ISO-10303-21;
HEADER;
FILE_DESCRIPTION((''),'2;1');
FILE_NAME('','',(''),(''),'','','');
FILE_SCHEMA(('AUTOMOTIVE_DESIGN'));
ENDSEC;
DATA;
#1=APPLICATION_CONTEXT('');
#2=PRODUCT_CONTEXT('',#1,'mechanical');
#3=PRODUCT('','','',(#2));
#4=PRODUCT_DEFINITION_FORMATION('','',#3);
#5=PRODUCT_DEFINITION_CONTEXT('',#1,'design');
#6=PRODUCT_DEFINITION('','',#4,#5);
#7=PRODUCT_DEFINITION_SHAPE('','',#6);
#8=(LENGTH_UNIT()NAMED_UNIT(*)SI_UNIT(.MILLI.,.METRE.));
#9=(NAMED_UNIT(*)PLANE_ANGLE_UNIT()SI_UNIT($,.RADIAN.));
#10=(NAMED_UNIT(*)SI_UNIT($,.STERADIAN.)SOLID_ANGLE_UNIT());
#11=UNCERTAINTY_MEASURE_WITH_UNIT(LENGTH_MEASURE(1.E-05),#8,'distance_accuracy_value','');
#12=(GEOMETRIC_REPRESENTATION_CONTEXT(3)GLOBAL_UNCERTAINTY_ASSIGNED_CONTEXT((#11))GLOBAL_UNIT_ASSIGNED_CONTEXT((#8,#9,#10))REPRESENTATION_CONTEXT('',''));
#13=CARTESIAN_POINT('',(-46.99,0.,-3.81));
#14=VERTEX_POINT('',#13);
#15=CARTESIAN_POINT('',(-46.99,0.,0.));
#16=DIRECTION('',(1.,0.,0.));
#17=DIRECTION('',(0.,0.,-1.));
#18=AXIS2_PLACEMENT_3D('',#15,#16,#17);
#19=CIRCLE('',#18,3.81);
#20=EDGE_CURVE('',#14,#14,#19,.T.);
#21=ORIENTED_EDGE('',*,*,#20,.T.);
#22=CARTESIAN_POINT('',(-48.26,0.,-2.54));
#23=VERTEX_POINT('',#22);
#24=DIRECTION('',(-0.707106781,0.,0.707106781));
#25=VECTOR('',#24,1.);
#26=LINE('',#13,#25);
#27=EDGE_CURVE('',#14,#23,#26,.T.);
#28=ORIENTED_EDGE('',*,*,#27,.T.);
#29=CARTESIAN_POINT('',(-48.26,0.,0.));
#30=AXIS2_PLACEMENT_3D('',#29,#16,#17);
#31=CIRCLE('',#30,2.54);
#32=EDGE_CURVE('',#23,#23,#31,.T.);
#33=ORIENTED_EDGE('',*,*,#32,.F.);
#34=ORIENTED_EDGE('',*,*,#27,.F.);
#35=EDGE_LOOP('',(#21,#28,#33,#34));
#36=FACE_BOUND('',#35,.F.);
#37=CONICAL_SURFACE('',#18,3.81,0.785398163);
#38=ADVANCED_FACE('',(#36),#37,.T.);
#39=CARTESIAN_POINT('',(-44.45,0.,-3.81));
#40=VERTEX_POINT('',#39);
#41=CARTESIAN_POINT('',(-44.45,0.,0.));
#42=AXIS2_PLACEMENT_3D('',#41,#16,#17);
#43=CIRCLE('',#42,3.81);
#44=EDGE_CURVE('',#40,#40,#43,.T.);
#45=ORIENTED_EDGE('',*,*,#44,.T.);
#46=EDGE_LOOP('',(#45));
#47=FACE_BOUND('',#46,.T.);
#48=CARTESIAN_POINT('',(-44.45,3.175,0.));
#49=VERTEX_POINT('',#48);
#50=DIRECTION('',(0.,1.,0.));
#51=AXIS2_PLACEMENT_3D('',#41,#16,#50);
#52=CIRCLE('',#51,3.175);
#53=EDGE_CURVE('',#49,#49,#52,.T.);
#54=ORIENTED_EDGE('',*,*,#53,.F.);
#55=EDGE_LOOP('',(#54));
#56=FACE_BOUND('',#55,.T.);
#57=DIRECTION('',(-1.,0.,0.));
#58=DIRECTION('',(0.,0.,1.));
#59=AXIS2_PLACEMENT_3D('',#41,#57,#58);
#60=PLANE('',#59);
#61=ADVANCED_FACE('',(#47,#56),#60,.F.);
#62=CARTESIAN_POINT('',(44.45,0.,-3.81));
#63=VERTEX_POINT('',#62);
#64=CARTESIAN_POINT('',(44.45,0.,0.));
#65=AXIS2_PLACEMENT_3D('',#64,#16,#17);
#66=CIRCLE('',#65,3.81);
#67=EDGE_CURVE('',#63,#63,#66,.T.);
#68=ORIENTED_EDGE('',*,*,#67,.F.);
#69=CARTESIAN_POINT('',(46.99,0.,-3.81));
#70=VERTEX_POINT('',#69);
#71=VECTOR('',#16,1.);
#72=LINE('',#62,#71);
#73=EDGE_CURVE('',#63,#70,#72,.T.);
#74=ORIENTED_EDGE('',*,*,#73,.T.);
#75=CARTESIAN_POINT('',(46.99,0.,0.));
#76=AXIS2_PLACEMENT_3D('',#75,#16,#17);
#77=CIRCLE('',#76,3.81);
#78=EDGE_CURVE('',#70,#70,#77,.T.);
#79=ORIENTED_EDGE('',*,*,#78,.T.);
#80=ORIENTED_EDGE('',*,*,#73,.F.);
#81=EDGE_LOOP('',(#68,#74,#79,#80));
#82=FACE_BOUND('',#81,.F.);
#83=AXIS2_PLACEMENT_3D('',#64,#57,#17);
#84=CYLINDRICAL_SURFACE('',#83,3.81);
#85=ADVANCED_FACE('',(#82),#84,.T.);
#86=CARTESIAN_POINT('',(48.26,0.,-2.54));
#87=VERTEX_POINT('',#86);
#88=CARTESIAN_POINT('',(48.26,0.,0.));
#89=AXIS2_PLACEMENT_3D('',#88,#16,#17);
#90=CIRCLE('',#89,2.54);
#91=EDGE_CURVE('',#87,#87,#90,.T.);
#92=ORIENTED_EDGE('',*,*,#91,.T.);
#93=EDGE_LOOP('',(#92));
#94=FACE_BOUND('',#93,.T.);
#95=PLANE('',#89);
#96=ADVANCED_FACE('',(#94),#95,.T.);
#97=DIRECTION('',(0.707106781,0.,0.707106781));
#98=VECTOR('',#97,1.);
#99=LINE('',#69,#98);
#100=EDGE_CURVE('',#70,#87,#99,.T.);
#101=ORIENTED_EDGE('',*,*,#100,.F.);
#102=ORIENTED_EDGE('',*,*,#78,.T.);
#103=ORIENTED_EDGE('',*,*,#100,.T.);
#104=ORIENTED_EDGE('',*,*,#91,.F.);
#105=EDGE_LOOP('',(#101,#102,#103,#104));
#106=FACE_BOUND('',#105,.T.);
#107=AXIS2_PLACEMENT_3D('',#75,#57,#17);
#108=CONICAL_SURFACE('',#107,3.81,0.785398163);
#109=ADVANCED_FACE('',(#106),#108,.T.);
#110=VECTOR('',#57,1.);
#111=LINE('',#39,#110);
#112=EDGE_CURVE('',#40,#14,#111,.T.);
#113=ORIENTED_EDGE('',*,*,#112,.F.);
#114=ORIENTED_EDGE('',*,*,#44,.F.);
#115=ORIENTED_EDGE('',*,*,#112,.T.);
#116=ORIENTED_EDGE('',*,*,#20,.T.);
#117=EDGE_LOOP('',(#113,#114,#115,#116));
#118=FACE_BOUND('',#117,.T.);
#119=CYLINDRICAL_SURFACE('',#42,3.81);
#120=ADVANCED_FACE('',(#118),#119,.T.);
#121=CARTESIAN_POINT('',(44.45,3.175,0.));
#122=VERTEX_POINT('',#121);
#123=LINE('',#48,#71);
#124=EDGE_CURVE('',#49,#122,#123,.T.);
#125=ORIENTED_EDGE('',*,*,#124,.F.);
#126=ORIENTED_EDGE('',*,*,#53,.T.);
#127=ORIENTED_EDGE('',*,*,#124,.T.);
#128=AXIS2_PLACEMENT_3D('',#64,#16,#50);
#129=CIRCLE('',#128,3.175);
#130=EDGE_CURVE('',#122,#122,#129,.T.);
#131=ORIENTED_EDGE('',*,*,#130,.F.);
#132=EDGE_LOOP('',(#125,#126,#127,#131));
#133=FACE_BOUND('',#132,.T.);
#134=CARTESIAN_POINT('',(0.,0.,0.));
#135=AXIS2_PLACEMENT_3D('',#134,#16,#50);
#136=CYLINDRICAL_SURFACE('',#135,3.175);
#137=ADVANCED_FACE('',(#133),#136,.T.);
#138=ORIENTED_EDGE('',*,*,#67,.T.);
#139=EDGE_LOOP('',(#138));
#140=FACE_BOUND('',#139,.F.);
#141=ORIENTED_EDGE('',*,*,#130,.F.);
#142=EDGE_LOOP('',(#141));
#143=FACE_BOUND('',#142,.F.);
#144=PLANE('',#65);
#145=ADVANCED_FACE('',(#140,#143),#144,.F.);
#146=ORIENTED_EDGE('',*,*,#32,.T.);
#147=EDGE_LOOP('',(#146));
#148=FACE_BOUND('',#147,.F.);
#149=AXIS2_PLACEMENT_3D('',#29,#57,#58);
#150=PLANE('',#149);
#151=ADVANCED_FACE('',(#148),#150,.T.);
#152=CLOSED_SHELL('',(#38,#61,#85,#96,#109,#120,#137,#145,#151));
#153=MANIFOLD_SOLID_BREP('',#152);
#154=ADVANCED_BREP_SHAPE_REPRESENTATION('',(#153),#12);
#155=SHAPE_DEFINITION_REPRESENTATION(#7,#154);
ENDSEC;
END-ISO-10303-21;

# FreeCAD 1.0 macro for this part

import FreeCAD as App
import Part
import Sketcher

V = App.Vector
Q = App.Units.Quantity


def edges_at(feature, points):
    """Names of the edges that pass closest to the given points."""
    edges = feature.Shape.Edges
    near = lambda p: min(range(len(edges)), key=lambda i: edges[i].distToShape(Part.Vertex(*p))[0])
    return sorted({f"Edge{near(p) + 1}" for p in points})

doc = App.newDocument("Part")
params = doc.addObject("Spreadsheet::Sheet", "Params")
for row, (alias, value) in enumerate([
    ("sketch1_diameter", "0.25 in"),
    ("pad1_length", "3.5 in"),
    ("sketch2_diameter", "0.3 in"),
    ("pad2_length", "0.15 in"),
    ("chamfer_size", "0.05 in"),
], start=1):
    params.set(f"A{row}", alias)
    params.set(f"B{row}", "=" + value)
    params.setAlias(f"B{row}", alias)

body = doc.addObject("PartDesign::Body", "Body")

sketch1 = body.newObject("Sketcher::SketchObject", "Sketch")
sketch1.AttachmentSupport = (doc.getObject("YZ_Plane"), [""])
sketch1.MapMode = "FlatFace"
sketch1.addGeometry(Part.Circle(V(0, 0, 0), V(0, 0, 1), 3.2), False)
sketch1.addConstraint([
    Sketcher.Constraint("Coincident", 0, 3, -1, 1),
    Sketcher.Constraint("Diameter", 0, Q("0.25 in")),
])
sketch1.setExpression("Constraints[1]", "Params.sketch1_diameter")
pad1 = body.newObject("PartDesign::Pad", "Pad")
pad1.Profile = sketch1
pad1.setExpression("Length", "Params.pad1_length")
pad1.Midplane = True

sketch2 = body.newObject("Sketcher::SketchObject", "Sketch001")
sketch2.AttachmentSupport = (doc.getObject("YZ_Plane"), [""])
sketch2.MapMode = "FlatFace"
sketch2.AttachmentOffset = App.Placement(V(0, 0, 1.75 * 25.4), App.Rotation())
sketch2.addGeometry(Part.Circle(V(0, 0, 0), V(0, 0, 1), 3.8), False)
sketch2.addConstraint([
    Sketcher.Constraint("Coincident", 0, 3, -1, 1),
    Sketcher.Constraint("Diameter", 0, Q("0.3 in")),
])
sketch2.setExpression("Constraints[1]", "Params.sketch2_diameter")
pad2 = body.newObject("PartDesign::Pad", "Pad001")
pad2.Profile = sketch2
pad2.setExpression("Length", "Params.pad2_length")
doc.recompute()

chamfer = body.newObject("PartDesign::Chamfer", "Chamfer")
chamfer.Base = (pad2, edges_at(pad2, [(48.26, 0, 3.81)]))
chamfer.setExpression("Size", "Params.chamfer_size")
doc.recompute()

mirrored = body.newObject("PartDesign::Mirrored", "Mirrored")
mirrored.Originals = [pad2, chamfer]
mirrored.MirrorPlane = (doc.getObject("YZ_Plane"), [""])
body.Tip = mirrored

doc.recompute()
